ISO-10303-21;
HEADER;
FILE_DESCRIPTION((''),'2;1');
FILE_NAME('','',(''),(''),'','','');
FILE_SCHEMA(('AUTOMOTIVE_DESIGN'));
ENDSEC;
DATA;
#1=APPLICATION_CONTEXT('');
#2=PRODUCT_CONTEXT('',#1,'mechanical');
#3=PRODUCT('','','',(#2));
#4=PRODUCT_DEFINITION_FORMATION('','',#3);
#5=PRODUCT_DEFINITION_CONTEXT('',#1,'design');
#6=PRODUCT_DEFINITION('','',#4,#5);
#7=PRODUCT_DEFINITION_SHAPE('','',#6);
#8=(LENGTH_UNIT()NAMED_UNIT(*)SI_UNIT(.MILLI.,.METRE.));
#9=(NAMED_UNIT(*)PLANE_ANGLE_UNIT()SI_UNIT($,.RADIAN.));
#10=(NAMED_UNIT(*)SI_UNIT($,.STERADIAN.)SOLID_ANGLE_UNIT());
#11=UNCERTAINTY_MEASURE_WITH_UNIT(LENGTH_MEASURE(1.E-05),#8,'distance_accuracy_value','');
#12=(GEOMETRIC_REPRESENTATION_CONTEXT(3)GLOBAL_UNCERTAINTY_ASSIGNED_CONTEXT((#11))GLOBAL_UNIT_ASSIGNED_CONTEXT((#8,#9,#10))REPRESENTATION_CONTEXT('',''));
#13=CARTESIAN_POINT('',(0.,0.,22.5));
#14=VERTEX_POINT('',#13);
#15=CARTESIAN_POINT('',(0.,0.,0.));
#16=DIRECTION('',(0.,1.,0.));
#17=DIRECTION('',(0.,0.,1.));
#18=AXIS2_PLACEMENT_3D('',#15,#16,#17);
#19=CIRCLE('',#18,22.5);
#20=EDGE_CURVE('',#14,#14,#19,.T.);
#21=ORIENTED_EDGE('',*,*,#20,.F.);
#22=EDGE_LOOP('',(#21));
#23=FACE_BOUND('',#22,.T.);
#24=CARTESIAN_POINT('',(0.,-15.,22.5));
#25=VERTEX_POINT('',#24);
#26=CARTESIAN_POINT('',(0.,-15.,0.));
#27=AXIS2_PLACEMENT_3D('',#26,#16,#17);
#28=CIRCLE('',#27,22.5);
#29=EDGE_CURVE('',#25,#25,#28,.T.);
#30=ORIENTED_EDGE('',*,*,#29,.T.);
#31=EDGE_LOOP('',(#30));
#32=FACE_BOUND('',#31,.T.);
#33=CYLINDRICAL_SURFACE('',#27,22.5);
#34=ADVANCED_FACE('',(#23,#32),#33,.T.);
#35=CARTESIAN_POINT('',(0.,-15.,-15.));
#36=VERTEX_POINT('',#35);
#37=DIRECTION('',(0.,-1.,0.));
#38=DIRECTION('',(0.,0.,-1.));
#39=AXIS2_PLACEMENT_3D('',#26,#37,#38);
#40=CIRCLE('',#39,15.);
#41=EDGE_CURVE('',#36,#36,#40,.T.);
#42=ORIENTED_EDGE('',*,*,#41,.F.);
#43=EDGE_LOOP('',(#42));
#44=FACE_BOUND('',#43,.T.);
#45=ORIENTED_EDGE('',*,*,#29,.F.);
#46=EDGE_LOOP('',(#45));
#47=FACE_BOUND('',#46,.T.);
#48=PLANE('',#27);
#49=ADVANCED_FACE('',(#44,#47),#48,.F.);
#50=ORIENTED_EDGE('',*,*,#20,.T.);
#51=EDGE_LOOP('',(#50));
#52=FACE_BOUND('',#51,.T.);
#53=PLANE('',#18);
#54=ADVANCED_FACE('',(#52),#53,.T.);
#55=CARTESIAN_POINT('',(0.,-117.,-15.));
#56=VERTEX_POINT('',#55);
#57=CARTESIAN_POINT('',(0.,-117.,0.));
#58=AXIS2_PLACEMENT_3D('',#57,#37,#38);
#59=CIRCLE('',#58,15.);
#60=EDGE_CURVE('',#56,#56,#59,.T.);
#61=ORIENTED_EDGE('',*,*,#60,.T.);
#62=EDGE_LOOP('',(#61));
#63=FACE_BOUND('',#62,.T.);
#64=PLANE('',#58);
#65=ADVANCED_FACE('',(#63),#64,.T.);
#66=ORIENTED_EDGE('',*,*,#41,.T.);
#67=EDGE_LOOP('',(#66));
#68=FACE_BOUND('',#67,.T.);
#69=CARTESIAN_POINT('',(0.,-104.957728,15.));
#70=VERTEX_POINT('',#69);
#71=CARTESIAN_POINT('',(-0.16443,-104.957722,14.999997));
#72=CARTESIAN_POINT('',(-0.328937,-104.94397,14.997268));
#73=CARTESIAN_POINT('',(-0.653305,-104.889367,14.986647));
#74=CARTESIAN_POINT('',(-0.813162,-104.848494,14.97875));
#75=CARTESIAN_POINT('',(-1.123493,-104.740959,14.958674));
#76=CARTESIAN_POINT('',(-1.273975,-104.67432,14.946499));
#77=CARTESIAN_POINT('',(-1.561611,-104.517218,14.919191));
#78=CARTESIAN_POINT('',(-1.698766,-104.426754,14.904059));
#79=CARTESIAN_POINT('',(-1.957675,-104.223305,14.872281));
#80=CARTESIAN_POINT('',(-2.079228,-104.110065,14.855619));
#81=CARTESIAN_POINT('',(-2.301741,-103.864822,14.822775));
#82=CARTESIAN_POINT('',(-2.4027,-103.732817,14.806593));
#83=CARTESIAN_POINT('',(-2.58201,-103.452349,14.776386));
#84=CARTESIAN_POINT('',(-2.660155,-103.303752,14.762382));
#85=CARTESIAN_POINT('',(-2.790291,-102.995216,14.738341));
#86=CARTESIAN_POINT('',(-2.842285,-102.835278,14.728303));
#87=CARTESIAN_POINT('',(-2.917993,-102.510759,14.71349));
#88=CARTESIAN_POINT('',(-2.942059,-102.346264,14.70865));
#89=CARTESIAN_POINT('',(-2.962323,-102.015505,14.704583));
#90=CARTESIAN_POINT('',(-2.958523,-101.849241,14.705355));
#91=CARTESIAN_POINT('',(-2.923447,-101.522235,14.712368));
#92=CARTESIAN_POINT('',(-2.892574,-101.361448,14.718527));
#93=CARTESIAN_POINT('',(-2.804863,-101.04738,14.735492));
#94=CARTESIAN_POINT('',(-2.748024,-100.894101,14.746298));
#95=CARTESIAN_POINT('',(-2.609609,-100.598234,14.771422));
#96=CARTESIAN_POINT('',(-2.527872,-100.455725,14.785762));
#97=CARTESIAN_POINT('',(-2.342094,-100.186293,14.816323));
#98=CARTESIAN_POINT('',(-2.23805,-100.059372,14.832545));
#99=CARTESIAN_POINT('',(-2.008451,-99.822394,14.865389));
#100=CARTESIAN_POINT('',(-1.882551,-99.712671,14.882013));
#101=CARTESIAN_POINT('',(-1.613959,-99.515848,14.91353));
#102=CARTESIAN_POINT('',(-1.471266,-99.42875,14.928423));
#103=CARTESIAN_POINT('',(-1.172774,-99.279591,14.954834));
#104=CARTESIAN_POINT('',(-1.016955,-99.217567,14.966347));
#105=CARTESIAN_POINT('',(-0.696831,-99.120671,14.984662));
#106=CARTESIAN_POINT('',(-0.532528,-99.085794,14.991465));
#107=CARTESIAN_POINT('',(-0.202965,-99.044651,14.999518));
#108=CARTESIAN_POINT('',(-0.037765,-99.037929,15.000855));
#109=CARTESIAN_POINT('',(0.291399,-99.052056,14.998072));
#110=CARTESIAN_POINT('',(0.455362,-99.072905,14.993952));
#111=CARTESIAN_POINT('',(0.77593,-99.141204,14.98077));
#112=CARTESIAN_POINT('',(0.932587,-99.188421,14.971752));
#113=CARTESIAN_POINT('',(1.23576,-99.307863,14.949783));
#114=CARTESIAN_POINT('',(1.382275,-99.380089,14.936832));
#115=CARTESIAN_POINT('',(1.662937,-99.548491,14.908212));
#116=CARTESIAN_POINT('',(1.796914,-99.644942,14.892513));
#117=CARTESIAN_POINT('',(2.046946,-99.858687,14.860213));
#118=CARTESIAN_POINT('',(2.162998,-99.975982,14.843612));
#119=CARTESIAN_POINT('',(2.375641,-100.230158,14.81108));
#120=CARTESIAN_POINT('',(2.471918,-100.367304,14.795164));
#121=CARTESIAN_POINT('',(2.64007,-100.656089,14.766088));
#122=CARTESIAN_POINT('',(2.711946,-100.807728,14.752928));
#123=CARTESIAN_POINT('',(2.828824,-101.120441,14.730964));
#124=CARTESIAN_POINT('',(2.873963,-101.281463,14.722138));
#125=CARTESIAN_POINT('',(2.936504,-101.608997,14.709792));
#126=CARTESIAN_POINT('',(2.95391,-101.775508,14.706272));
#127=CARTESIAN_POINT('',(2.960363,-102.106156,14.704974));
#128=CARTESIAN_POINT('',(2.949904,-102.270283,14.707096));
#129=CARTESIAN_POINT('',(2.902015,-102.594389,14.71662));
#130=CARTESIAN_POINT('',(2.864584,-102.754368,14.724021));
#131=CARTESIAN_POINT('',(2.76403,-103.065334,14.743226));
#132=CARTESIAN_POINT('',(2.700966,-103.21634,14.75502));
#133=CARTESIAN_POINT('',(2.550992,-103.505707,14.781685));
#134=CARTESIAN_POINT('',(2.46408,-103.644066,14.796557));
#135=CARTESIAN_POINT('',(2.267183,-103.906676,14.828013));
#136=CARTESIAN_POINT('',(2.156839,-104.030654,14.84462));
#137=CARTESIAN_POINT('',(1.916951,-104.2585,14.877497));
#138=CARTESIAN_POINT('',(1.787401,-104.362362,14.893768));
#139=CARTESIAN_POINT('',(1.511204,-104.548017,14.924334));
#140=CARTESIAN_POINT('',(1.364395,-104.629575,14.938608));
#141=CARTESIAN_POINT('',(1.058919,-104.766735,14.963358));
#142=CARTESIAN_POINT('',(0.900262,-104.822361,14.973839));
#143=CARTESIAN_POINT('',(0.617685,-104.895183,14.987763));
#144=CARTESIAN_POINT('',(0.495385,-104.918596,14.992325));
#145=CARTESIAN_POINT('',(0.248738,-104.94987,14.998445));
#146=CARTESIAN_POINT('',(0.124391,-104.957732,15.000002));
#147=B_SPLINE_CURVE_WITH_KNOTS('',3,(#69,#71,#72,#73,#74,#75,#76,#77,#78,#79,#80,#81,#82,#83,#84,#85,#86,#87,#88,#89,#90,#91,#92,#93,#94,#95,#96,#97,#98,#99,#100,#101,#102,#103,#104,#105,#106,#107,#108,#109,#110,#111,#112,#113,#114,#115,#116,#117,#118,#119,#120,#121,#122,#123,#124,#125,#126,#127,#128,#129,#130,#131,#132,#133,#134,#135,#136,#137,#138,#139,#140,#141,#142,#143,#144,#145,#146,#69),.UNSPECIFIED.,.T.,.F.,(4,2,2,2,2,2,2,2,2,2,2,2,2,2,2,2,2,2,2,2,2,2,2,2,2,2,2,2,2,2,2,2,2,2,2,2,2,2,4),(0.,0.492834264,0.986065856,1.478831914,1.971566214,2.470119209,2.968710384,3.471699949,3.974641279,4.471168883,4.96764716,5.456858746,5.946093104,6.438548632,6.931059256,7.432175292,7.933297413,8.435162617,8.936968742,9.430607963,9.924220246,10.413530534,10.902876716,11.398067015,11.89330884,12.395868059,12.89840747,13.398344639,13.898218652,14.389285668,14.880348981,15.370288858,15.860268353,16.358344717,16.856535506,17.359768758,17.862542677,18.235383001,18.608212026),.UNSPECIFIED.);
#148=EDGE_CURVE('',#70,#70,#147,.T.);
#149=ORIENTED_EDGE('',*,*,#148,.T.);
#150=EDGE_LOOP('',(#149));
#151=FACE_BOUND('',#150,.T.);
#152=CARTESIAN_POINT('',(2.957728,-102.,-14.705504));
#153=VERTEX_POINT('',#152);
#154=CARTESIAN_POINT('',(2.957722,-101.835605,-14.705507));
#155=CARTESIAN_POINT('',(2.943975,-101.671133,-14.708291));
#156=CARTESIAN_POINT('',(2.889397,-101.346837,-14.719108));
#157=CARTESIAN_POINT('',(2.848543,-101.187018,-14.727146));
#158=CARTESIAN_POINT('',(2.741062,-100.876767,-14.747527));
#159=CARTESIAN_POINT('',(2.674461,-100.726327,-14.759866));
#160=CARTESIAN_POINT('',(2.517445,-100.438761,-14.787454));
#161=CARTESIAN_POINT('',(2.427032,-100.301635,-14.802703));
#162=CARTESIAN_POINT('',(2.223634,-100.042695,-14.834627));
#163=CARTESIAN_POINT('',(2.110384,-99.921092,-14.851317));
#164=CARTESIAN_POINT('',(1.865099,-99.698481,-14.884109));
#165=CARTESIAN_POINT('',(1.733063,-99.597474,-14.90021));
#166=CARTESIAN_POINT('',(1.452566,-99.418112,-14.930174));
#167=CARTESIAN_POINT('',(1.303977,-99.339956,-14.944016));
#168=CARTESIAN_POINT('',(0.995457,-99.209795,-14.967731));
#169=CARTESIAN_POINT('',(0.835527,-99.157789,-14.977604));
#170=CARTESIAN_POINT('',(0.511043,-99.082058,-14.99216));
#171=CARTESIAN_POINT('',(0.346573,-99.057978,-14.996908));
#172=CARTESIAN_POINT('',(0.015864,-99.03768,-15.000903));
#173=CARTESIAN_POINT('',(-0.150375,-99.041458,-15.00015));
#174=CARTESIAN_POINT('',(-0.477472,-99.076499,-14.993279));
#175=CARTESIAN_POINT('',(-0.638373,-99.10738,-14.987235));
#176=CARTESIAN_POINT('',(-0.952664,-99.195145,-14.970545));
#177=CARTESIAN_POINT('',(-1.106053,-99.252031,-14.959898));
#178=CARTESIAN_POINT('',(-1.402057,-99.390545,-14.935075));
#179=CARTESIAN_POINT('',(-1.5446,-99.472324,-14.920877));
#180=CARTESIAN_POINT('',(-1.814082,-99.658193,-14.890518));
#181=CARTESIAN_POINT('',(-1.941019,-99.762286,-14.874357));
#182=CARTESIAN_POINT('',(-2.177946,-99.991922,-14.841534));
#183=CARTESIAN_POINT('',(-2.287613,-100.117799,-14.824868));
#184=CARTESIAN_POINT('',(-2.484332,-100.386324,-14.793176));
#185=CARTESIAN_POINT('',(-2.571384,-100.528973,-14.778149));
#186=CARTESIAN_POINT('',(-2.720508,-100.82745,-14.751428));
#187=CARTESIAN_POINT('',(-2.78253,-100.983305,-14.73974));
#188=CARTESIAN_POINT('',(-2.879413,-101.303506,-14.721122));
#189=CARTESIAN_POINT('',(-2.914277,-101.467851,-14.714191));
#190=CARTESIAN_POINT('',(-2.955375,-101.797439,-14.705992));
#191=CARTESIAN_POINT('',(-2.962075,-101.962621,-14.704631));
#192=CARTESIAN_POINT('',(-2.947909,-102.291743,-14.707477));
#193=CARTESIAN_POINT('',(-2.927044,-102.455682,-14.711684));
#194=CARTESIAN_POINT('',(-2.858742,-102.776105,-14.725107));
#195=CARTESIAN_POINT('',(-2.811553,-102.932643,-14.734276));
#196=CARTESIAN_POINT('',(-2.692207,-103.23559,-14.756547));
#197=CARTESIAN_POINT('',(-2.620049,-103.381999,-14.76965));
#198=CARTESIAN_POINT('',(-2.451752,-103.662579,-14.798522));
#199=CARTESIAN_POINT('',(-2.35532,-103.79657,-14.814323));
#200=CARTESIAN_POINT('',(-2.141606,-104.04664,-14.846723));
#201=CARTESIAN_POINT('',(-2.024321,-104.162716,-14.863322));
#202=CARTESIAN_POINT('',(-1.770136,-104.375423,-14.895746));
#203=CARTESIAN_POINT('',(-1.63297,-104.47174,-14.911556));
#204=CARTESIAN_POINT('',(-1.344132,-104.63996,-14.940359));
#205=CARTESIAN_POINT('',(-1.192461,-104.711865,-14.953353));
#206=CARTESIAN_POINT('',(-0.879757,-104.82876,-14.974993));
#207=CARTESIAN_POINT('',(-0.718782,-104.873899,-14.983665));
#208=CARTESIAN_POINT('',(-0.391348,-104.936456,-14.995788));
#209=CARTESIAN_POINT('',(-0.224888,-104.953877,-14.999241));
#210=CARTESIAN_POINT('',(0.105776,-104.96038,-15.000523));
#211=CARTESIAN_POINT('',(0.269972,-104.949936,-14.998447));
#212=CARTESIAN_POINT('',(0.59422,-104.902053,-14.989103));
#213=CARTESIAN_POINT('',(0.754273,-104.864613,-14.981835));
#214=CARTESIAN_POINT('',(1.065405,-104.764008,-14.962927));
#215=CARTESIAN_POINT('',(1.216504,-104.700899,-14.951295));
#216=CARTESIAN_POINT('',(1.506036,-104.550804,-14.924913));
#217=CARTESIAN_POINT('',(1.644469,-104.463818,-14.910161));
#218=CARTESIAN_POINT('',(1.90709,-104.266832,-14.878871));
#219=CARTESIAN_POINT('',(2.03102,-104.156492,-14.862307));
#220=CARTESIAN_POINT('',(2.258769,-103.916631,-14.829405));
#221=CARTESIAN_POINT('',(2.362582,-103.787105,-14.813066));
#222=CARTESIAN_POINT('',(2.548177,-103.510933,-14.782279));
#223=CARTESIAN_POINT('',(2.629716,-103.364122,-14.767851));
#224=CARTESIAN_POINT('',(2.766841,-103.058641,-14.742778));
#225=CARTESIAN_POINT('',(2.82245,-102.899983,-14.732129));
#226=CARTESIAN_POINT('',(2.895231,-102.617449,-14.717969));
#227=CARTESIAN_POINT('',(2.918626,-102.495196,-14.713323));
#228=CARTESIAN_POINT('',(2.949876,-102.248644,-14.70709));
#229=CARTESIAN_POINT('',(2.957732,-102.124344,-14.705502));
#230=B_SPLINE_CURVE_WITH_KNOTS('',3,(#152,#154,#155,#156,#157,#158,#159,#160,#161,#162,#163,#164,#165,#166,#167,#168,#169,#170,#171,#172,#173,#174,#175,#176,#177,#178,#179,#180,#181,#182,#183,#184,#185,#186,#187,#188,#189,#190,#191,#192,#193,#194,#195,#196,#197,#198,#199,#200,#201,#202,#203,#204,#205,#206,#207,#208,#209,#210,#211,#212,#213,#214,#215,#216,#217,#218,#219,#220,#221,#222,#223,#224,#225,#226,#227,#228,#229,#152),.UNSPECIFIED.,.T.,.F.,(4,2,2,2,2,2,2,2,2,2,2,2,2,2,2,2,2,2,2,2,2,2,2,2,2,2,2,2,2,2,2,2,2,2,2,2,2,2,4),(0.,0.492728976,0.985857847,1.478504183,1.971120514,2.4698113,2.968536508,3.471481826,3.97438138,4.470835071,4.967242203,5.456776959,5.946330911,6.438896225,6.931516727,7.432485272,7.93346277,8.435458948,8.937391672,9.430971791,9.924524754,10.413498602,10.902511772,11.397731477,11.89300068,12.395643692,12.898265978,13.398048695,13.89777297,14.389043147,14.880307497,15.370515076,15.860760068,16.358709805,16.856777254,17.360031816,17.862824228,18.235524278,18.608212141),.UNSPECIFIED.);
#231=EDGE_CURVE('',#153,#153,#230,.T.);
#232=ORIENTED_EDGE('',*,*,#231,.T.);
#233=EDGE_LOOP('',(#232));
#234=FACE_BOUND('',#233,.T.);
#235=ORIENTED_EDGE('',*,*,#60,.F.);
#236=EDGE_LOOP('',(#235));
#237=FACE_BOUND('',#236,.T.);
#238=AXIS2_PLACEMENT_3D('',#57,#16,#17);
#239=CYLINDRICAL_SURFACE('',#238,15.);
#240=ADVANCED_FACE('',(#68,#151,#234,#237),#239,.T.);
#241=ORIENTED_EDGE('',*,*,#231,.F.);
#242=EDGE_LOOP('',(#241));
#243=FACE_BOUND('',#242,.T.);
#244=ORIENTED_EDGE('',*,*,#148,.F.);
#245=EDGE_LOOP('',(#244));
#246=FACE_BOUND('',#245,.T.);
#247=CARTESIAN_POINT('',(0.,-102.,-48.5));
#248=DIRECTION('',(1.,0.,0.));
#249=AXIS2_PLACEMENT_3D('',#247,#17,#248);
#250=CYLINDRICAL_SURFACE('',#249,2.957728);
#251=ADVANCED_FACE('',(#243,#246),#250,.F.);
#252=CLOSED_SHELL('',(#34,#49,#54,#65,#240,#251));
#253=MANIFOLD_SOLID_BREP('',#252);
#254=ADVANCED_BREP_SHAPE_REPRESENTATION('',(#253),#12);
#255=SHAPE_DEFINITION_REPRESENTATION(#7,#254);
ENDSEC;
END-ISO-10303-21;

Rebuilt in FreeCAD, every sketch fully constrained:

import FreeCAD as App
import Part
import Sketcher

V = App.Vector
Q = App.Units.Quantity

doc = App.newDocument("Part")
body = doc.addObject("PartDesign::Body", "Body")

sketch1 = body.newObject("Sketcher::SketchObject", "Sketch")
sketch1.AttachmentSupport = (doc.getObject("XZ_Plane"), [""])
sketch1.MapMode = "FlatFace"
sketch1.addGeometry(Part.Circle(V(0, 0, 0), V(0, 0, 1), 22.5), False)
sketch1.addConstraint([
    Sketcher.Constraint("Coincident", 0, 3, -1, 1),
    Sketcher.Constraint("Diameter", 0, Q("45 mm")),
])
pad1 = body.newObject("PartDesign::Pad", "Pad")
pad1.Profile = sketch1
pad1.Length = 15

sketch2 = body.newObject("Sketcher::SketchObject", "Sketch001")
sketch2.AttachmentSupport = (doc.getObject("XZ_Plane"), [""])
sketch2.MapMode = "FlatFace"
sketch2.AttachmentOffset = App.Placement(V(0, 0, 15), App.Rotation())
sketch2.addGeometry(Part.Circle(V(0, 0, 0), V(0, 0, 1), 15), False)
sketch2.addConstraint([
    Sketcher.Constraint("Coincident", 0, 3, -1, 1),
    Sketcher.Constraint("Diameter", 0, Q("30 mm")),
])
pad2 = body.newObject("PartDesign::Pad", "Pad001")
pad2.Profile = sketch2
pad2.Length = 102

sketch3 = body.newObject("Sketcher::SketchObject", "Sketch002")
sketch3.AttachmentSupport = (doc.getObject("XY_Plane"), [""])
sketch3.MapMode = "FlatFace"
sketch3.addGeometry(Part.Circle(V(0, -102, 0), V(0, 0, 1), 2.957728), False)
sketch3.addConstraint([
    Sketcher.Constraint("PointOnObject", 0, 3, -2),
    Sketcher.Constraint("DistanceY", 0, 3, -1, 1, Q("102 mm")),
    Sketcher.Constraint("Diameter", 0, Q("5.915455 mm")),
])
pocket1 = body.newObject("PartDesign::Pocket", "Pocket")
pocket1.Profile = sketch3
pocket1.Length = 97
pocket1.Midplane = True

doc.recompute()
